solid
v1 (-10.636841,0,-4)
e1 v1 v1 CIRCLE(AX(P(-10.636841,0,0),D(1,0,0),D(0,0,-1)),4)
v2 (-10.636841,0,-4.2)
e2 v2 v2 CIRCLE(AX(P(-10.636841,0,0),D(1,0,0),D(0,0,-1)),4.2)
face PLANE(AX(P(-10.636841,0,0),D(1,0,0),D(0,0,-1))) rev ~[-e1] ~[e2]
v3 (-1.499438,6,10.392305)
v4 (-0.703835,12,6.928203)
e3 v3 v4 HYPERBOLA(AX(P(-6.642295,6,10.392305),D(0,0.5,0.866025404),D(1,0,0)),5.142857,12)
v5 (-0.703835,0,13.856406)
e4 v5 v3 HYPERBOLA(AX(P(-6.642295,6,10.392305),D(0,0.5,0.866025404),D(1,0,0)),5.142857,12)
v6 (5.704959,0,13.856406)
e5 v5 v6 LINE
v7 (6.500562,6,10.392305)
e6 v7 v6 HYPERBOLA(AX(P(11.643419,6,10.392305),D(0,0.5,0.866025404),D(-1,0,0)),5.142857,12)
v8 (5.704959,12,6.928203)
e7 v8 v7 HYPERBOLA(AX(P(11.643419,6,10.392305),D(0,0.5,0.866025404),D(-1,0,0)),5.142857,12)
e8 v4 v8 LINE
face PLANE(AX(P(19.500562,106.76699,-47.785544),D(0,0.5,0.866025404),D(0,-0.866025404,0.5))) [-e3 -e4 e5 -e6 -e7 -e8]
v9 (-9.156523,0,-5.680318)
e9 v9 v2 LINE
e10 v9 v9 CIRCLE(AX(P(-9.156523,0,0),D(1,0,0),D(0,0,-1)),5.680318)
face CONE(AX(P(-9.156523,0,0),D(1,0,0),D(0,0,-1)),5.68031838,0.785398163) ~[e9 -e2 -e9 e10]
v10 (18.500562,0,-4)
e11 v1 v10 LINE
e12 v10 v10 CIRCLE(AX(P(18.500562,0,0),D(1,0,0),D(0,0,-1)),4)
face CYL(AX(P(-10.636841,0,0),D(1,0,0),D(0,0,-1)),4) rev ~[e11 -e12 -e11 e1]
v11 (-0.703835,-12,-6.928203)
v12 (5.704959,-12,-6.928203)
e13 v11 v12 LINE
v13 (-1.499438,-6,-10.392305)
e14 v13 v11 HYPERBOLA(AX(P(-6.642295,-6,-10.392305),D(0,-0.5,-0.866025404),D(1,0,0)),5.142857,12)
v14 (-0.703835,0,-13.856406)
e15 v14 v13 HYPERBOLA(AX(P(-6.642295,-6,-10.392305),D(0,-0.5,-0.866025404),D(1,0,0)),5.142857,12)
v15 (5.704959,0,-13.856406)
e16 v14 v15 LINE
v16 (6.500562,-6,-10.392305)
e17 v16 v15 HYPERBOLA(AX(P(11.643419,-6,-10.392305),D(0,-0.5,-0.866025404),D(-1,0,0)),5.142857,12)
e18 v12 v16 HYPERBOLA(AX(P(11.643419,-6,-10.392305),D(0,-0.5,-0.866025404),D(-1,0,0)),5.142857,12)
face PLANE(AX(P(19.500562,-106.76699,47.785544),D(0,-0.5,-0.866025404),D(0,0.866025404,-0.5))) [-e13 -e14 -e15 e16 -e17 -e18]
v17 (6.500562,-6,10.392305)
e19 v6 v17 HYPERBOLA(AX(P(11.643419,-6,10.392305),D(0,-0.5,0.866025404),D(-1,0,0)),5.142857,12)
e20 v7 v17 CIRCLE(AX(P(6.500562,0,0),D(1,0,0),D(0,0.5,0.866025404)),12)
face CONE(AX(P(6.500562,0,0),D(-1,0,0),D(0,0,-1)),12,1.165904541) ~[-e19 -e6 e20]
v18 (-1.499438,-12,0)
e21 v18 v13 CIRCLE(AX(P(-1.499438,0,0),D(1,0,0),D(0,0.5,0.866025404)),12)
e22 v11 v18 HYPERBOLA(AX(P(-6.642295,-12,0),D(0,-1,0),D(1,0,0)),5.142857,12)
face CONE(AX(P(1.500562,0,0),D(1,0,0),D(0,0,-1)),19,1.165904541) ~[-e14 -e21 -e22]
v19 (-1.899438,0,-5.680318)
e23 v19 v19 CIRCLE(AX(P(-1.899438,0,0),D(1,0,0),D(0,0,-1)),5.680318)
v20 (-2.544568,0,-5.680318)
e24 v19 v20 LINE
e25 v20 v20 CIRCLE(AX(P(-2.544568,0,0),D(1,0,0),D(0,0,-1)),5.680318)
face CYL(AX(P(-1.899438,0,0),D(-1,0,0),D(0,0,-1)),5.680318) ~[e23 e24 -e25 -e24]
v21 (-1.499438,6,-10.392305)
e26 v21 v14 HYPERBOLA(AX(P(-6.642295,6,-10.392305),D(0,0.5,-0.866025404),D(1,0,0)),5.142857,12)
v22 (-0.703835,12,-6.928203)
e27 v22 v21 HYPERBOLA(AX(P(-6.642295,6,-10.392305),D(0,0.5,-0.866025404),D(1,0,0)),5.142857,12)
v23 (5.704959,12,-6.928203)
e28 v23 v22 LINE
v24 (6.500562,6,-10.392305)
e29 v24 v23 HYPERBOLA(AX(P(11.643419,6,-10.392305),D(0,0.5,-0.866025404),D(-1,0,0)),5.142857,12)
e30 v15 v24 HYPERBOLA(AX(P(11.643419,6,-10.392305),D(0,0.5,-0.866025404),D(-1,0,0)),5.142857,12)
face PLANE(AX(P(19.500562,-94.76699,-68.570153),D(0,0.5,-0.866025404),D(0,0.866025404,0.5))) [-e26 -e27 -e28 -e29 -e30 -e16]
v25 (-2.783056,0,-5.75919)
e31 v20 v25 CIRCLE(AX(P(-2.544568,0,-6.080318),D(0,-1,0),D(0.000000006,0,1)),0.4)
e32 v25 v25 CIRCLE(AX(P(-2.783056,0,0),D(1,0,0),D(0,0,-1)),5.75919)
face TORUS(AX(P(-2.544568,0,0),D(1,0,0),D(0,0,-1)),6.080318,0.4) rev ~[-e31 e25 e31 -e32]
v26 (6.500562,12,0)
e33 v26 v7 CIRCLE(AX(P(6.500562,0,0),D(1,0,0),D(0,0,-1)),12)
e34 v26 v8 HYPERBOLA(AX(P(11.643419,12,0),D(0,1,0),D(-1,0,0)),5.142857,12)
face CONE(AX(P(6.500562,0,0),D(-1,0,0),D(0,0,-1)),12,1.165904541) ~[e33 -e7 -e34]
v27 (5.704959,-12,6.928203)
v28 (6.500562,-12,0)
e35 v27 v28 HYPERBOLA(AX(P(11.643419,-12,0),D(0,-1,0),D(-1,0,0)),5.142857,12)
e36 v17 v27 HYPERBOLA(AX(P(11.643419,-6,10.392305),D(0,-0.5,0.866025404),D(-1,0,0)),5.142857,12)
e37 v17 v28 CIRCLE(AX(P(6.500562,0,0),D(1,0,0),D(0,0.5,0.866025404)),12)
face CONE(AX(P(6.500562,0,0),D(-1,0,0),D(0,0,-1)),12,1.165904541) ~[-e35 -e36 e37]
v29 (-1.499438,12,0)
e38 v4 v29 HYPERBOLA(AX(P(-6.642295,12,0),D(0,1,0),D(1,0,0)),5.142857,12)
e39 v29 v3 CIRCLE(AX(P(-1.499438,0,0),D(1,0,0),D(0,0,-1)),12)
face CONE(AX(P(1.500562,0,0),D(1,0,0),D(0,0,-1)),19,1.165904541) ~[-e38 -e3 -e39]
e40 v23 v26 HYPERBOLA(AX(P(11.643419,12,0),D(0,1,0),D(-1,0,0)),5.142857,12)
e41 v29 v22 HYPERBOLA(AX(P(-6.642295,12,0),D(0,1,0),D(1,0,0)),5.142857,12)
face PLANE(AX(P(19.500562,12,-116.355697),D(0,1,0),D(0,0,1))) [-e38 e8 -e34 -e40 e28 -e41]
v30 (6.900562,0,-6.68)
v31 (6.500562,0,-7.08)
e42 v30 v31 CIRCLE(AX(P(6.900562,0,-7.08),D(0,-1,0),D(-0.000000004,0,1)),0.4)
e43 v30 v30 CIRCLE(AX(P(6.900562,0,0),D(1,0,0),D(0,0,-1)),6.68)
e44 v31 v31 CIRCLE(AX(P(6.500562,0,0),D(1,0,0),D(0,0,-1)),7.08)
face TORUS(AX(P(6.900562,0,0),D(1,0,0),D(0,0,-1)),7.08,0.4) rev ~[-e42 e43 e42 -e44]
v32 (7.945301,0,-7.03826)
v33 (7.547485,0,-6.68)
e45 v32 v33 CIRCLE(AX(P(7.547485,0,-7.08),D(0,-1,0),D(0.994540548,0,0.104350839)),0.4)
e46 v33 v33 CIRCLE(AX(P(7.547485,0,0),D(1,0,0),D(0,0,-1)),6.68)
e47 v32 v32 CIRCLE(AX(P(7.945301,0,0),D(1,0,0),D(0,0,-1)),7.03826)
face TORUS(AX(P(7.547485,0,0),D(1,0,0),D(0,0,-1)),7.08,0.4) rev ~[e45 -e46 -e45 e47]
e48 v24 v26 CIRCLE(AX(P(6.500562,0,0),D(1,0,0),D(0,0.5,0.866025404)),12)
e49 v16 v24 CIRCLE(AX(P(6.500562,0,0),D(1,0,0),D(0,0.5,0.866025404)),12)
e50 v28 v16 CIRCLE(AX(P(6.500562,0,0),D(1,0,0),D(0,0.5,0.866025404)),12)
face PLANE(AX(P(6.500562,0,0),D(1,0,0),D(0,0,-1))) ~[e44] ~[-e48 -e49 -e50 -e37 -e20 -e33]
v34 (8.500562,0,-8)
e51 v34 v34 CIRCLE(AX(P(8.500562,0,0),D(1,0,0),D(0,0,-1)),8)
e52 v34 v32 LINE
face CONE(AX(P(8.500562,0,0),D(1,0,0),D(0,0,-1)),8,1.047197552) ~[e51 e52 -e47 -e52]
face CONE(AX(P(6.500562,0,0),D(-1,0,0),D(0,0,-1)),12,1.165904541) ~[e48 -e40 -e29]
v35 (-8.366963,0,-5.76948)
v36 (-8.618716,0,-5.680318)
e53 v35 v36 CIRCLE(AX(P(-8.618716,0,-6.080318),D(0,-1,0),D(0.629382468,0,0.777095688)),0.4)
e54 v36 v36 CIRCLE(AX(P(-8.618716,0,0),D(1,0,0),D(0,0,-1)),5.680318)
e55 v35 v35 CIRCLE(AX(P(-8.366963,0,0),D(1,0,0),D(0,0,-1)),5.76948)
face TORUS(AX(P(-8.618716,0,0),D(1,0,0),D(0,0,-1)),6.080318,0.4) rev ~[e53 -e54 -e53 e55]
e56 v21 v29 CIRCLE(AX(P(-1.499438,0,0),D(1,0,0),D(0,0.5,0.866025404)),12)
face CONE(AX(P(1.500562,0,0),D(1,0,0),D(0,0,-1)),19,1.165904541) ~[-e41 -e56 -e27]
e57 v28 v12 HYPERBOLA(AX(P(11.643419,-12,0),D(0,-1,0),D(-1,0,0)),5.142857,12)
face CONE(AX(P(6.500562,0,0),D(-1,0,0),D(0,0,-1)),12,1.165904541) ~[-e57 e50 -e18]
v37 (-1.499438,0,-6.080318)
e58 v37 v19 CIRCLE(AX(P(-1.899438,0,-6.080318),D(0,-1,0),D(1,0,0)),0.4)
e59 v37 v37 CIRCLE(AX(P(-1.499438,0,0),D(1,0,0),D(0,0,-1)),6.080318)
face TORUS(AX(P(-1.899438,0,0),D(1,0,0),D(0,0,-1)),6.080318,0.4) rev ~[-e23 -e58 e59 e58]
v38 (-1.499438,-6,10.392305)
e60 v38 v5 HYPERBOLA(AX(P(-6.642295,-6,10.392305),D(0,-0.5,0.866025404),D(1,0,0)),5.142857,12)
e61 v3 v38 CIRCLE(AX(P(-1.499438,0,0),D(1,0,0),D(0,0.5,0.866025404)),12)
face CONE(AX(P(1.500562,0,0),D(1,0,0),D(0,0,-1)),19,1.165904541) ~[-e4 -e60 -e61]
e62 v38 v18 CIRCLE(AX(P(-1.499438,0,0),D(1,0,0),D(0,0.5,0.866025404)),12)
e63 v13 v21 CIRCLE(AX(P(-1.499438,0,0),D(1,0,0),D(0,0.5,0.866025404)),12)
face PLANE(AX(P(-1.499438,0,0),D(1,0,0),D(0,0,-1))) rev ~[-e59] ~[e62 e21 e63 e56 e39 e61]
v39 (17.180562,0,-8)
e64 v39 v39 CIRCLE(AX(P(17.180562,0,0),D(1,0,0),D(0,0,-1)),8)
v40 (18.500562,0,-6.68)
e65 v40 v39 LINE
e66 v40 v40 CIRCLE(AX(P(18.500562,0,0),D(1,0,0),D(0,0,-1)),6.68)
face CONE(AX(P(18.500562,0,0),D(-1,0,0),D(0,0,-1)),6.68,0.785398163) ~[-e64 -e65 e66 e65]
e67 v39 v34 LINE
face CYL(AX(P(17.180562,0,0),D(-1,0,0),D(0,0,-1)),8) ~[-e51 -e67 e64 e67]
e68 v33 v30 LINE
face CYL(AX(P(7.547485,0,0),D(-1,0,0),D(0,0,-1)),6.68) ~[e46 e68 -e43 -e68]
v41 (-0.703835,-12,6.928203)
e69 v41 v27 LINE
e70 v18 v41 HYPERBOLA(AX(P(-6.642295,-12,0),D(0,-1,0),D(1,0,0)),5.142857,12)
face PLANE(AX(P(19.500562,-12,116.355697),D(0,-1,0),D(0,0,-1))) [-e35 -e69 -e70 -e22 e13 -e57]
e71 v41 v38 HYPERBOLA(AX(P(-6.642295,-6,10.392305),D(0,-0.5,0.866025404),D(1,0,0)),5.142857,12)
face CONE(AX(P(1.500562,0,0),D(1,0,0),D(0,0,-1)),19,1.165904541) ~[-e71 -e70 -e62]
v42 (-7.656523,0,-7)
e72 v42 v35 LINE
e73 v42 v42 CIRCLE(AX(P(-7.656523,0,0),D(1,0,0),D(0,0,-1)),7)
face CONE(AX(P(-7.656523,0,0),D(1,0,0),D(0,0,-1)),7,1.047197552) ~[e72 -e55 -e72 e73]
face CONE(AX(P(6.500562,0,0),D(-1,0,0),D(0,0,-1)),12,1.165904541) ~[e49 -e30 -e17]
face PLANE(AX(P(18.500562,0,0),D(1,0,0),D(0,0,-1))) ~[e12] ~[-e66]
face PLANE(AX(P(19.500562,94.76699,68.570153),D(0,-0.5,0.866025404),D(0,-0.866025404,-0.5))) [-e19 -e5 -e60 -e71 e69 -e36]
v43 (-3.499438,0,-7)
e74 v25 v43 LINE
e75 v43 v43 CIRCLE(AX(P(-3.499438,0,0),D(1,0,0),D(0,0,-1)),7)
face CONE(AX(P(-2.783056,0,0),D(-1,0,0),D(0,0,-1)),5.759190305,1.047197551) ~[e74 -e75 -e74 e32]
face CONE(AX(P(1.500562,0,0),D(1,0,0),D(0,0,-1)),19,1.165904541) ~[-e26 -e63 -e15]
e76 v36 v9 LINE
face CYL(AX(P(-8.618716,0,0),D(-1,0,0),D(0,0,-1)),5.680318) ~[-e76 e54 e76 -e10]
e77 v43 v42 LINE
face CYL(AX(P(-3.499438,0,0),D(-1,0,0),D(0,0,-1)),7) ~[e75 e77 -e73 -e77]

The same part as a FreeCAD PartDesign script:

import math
import FreeCAD as App
import Part
import Sketcher

V = App.Vector
Q = App.Units.Quantity

doc = App.newDocument("Part")
body = doc.addObject("PartDesign::Body", "Body")

sketch1 = body.newObject("Sketcher::SketchObject", "Sketch")
sketch1.AttachmentSupport = (doc.getObject("XZ_Plane"), [""])
sketch1.MapMode = "FlatFace"
sketch1.addGeometry([
    Part.LineSegment(V(6.5, -7.08, 0), V(6.5, -12, 0)),
    Part.LineSegment(V(6.5, -12, 0), V(3.5, -19, 0)),
    Part.LineSegment(V(3.5, -19, 0), V(1.5, -19, 0)),
    Part.LineSegment(V(1.5, -19, 0), V(-1.5, -12, 0)),
    Part.LineSegment(V(-1.5, -12, 0), V(-1.5, -6.08, 0)),
    Part.ArcOfCircle(Part.Circle(V(-1.9, -6.08, 0), V(0, 0, 1), 0.4), math.radians(0), math.radians(90)),
    Part.LineSegment(V(-1.9, -5.68, 0), V(-2.54, -5.68, 0)),
    Part.ArcOfCircle(Part.Circle(V(-2.54, -6.08, 0), V(0, 0, 1), 0.4), math.radians(90), math.radians(127)),
    Part.LineSegment(V(-2.78, -5.76, 0), V(-3.5, -7, 0)),
    Part.LineSegment(V(-3.5, -7, 0), V(-7.66, -7, 0)),
    Part.LineSegment(V(-7.66, -7, 0), V(-8.37, -5.77, 0)),
    Part.ArcOfCircle(Part.Circle(V(-8.62, -6.08, 0), V(0, 0, 1), 0.4), math.radians(51), math.radians(90)),
    Part.LineSegment(V(-8.62, -5.68, 0), V(-9.16, -5.68, 0)),
    Part.LineSegment(V(-9.16, -5.68, 0), V(-10.64, -4.2, 0)),
    Part.LineSegment(V(-10.64, -4.2, 0), V(-10.64, -4, 0)),
    Part.LineSegment(V(-10.64, -4, 0), V(18.5, -4, 0)),
    Part.LineSegment(V(18.5, -4, 0), V(18.5, -6.68, 0)),
    Part.LineSegment(V(18.5, -6.68, 0), V(17.18, -8, 0)),
    Part.LineSegment(V(17.18, -8, 0), V(8.5, -8, 0)),
    Part.LineSegment(V(8.5, -8, 0), V(7.95, -7.04, 0)),
    Part.ArcOfCircle(Part.Circle(V(7.55, -7.08, 0), V(0, 0, 1), 0.4), math.radians(6), math.radians(90)),
    Part.LineSegment(V(7.55, -6.68, 0), V(6.9, -6.68, 0)),
    Part.ArcOfCircle(Part.Circle(V(6.9, -7.08, 0), V(0, 0, 1), 0.4), math.radians(90), math.radians(180)),
], False)
sketch1.addConstraint([
    Sketcher.Constraint("Coincident", 0, 2, 1, 1),
    Sketcher.Constraint("Coincident", 1, 2, 2, 1),
    Sketcher.Constraint("Coincident", 2, 2, 3, 1),
    Sketcher.Constraint("Coincident", 3, 2, 4, 1),
    Sketcher.Constraint("Tangent", 4, 2, 5, 1),
    Sketcher.Constraint("Tangent", 5, 2, 6, 1),
    Sketcher.Constraint("Tangent", 6, 2, 7, 1),
    Sketcher.Constraint("Coincident", 7, 2, 8, 1),
    Sketcher.Constraint("Coincident", 8, 2, 9, 1),
    Sketcher.Constraint("Coincident", 9, 2, 10, 1),
    Sketcher.Constraint("Coincident", 10, 2, 11, 1),
    Sketcher.Constraint("Tangent", 11, 2, 12, 1),
    Sketcher.Constraint("Coincident", 12, 2, 13, 1),
    Sketcher.Constraint("Coincident", 13, 2, 14, 1),
    Sketcher.Constraint("Coincident", 14, 2, 15, 1),
    Sketcher.Constraint("Coincident", 15, 2, 16, 1),
    Sketcher.Constraint("Coincident", 16, 2, 17, 1),
    Sketcher.Constraint("Coincident", 17, 2, 18, 1),
    Sketcher.Constraint("Coincident", 18, 2, 19, 1),
    Sketcher.Constraint("Coincident", 19, 2, 20, 1),
    Sketcher.Constraint("Tangent", 20, 2, 21, 1),
    Sketcher.Constraint("Tangent", 21, 2, 22, 1),
    Sketcher.Constraint("Tangent", 22, 2, 0, 1),
    Sketcher.Constraint("Vertical", 0),
    Sketcher.Constraint("Horizontal", 2),
    Sketcher.Constraint("Vertical", 4),
    Sketcher.Constraint("Horizontal", 6),
    Sketcher.Constraint("Horizontal", 9),
    Sketcher.Constraint("Horizontal", 12),
    Sketcher.Constraint("Vertical", 14),
    Sketcher.Constraint("Horizontal", 15),
    Sketcher.Constraint("Vertical", 16),
    Sketcher.Constraint("Horizontal", 18),
    Sketcher.Constraint("Horizontal", 21),
    Sketcher.Constraint("Equal", 5, 7),
    Sketcher.Constraint("Equal", 7, 11),
    Sketcher.Constraint("Equal", 11, 20),
    Sketcher.Constraint("Equal", 20, 22),
    Sketcher.Constraint("Perpendicular", 13, 17),
    Sketcher.Constraint("Parallel", 10, 19),
    Sketcher.Constraint("Horizontal", 7, 3, 11, 3),
    Sketcher.Constraint("Horizontal", 0, 2, 3, 2),
    Sketcher.Constraint("Horizontal", 16, 2, 20, 2),
    Sketcher.Constraint("Equal", 1, 3),
    Sketcher.Constraint("Radius", 5, 0.4),
    Sketcher.Constraint("DistanceX", 2, 2, 2, 1, 2.0),
    Sketcher.Constraint("Angle", 8, Q("-120 deg")),
    Sketcher.Constraint("Angle", 10, Q("120 deg")),
    Sketcher.Constraint("Angle", 13, Q("135 deg")),
    Sketcher.Constraint("DistanceY", 14, 1, 14, 2, 0.2),
    Sketcher.Constraint("DistanceY", 0, 2, -1, 1, 12.0),
    Sketcher.Constraint("DistanceY", 1, 2, -1, 1, 19.0),
    Sketcher.Constraint("DistanceY", 8, 2, -1, 1, 7.0),
    Sketcher.Constraint("DistanceY", 14, 2, -1, 1, 4.0),
    Sketcher.Constraint("DistanceY", 17, 2, -1, 1, 8.0),
    Sketcher.Constraint("DistanceX", 1, 2, 0, 2, 3.0),
    Sketcher.Constraint("DistanceX", 0, 2, 15, 2, 12.0),
    Sketcher.Constraint("DistanceX", 0, 2, 18, 2, 2.0),
    Sketcher.Constraint("DistanceX", 18, 2, 18, 1, 8.68),
    Sketcher.Constraint("DistanceX", 8, 2, 5, 3, 1.6),
    Sketcher.Constraint("DistanceX", 12, 2, 9, 2, 1.5),
    Sketcher.Constraint("DistanceX", 6, 2, 6, 1, 0.64513),
    Sketcher.Constraint("DistanceY", 4, 1, 4, 2, 5.919682),
    Sketcher.Constraint("DistanceX", -1, 1, 19, 2, 7.945301),
    Sketcher.Constraint("DistanceX", 11, 3, 20, 3, 16.166201),
    Sketcher.Constraint("Distance", 10, 1.420882),
    Sketcher.Constraint("DistanceX", 9, 2, 9, 1, 4.157085),
])
revolution = body.newObject("PartDesign::Revolution", "Revolution")
revolution.Profile = sketch1
revolution.ReferenceAxis = (sketch1, ["H_Axis"])
revolution.Angle = 360

sketch2 = body.newObject("Sketcher::SketchObject", "Sketch001")
sketch2.AttachmentSupport = (doc.getObject("YZ_Plane"), [""])
sketch2.MapMode = "FlatFace"
sketch2.AttachmentOffset = App.Placement(V(0, 0, 19.500562), App.Rotation())
sketch2.addGeometry([
    Part.LineSegment(V(12, -116, 0), V(12, 116, 0)),
    Part.LineSegment(V(12, 116, 0), V(215, 116, 0)),
    Part.LineSegment(V(215, 116, 0), V(215, -116, 0)),
    Part.LineSegment(V(215, -116, 0), V(12, -116, 0)),
], False)
sketch2.addConstraint([
    Sketcher.Constraint("Coincident", 0, 2, 1, 1),
    Sketcher.Constraint("Coincident", 1, 2, 2, 1),
    Sketcher.Constraint("Coincident", 2, 2, 3, 1),
    Sketcher.Constraint("Coincident", 3, 2, 0, 1),
    Sketcher.Constraint("Vertical", 0),
    Sketcher.Constraint("Horizontal", 1),
    Sketcher.Constraint("Vertical", 2),
    Sketcher.Constraint("Horizontal", 3),
    Sketcher.Constraint("DistanceX", -1, 1, 0, 2, 12.0),
    Sketcher.Constraint("DistanceX", 1, 1, 1, 2, 203.249555),
    Sketcher.Constraint("DistanceY", 0, 1, 0, 2, 232.711394),
    Sketcher.Constraint("DistanceY", -1, 1, 0, 2, 116.355697),
])
pocket1 = body.newObject("PartDesign::Pocket", "Pocket")
pocket1.Profile = sketch2
pocket1.Length = 31.137403
doc.recompute()

polarpattern = body.newObject("PartDesign::PolarPattern", "PolarPattern")
polarpattern.Originals = [pocket1]
polarpattern.Axis = (doc.getObject("X_Axis"), [""])
polarpattern.Angle = 360
polarpattern.Occurrences = 6
body.Tip = polarpattern

doc.recompute()
